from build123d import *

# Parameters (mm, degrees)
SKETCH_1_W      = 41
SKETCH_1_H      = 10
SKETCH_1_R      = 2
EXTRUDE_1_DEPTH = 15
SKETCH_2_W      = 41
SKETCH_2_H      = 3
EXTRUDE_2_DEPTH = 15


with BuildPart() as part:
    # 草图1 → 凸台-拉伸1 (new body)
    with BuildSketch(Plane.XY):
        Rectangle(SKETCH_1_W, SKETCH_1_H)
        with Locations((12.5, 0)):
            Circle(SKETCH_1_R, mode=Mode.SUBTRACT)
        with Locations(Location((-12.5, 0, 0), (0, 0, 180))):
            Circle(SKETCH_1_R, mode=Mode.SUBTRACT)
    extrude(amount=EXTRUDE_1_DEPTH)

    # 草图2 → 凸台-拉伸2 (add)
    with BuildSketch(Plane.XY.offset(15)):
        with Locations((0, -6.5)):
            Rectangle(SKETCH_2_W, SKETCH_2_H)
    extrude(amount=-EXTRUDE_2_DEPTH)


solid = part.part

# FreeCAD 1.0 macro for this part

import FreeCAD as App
import Part
import Sketcher
Q = App.Units.Quantity

doc = App.newDocument("Part")
body = doc.addObject("PartDesign::Body", "Body")

# Sketch on XY plane
sketch1 = doc.addObject("Sketcher::SketchObject", "Sketch")
body.addObject(sketch1)
sketch1.AttachmentSupport = (doc.XY_Plane, [""])
sketch1.MapMode = "FlatFace"
sketch1.addGeometry(Part.LineSegment(App.Vector(-20.5, 5, 0), App.Vector(-20.5, -5, 0)), False)
sketch1.addGeometry(Part.LineSegment(App.Vector(-20.5, -5, 0), App.Vector(20.5, -5, 0)), False)
sketch1.addGeometry(Part.LineSegment(App.Vector(20.5, -5, 0), App.Vector(20.5, 5, 0)), False)
sketch1.addGeometry(Part.LineSegment(App.Vector(20.5, 5, 0), App.Vector(-20.5, 5, 0)), False)
sketch1.addGeometry(Part.Circle(App.Vector(-12.5, 0, 0), App.Vector(0, 0, 1), 2), False)
sketch1.addGeometry(Part.Circle(App.Vector(12.5, 0, 0), App.Vector(0, 0, 1), 2), False)
sketch1.addConstraint(Sketcher.Constraint("Coincident", 0, 2, 1, 1))
sketch1.addConstraint(Sketcher.Constraint("Coincident", 1, 2, 2, 1))
sketch1.addConstraint(Sketcher.Constraint("Coincident", 2, 2, 3, 1))
sketch1.addConstraint(Sketcher.Constraint("Coincident", 3, 2, 0, 1))
sketch1.addConstraint(Sketcher.Constraint("Vertical", 0))
sketch1.addConstraint(Sketcher.Constraint("Horizontal", 1))
sketch1.addConstraint(Sketcher.Constraint("Vertical", 2))
sketch1.addConstraint(Sketcher.Constraint("Horizontal", 3))
sketch1.addConstraint(Sketcher.Constraint("Equal", 4, 5))
sketch1.addConstraint(Sketcher.Constraint("Symmetric", 4, 3, 5, 3, -1, 1))
sketch1.addConstraint(Sketcher.Constraint("Symmetric", 0, 2, 2, 2, -1, 1))
sketch1.addConstraint(Sketcher.Constraint("PointOnObject", 4, 3, -1))
sketch1.addConstraint(Sketcher.Constraint("Diameter", 4, Q("4 mm")))
sketch1.addConstraint(Sketcher.Constraint("DistanceX", 1, 1, 1, 2, Q("41 mm")))
sketch1.addConstraint(Sketcher.Constraint("DistanceY", 0, 2, 0, 1, Q("10 mm")))
sketch1.addConstraint(Sketcher.Constraint("DistanceX", 4, 3, 5, 3, Q("25 mm")))
pad1 = doc.addObject("PartDesign::Pad", "Pad")
body.addObject(pad1)
pad1.Profile = sketch1
pad1.Length = 15

# Sketch on XY plane
sketch2 = doc.addObject("Sketcher::SketchObject", "Sketch001")
body.addObject(sketch2)
sketch2.AttachmentSupport = (doc.XY_Plane, [""])
sketch2.MapMode = "FlatFace"
sketch2.AttachmentOffset = App.Placement(App.Vector(0, 0, 15), App.Rotation())
sketch2.addGeometry(Part.LineSegment(App.Vector(-20.5, -5, 0), App.Vector(-20.5, -8, 0)), False)
sketch2.addGeometry(Part.LineSegment(App.Vector(-20.5, -8, 0), App.Vector(20.5, -8, 0)), False)
sketch2.addGeometry(Part.LineSegment(App.Vector(20.5, -8, 0), App.Vector(20.5, -5, 0)), False)
sketch2.addGeometry(Part.LineSegment(App.Vector(20.5, -5, 0), App.Vector(-20.5, -5, 0)), False)
sketch2.addConstraint(Sketcher.Constraint("Coincident", 0, 2, 1, 1))
sketch2.addConstraint(Sketcher.Constraint("Coincident", 1, 2, 2, 1))
sketch2.addConstraint(Sketcher.Constraint("Coincident", 2, 2, 3, 1))
sketch2.addConstraint(Sketcher.Constraint("Coincident", 3, 2, 0, 1))
sketch2.addConstraint(Sketcher.Constraint("Vertical", 0))
sketch2.addConstraint(Sketcher.Constraint("Horizontal", 1))
sketch2.addConstraint(Sketcher.Constraint("Vertical", 2))
sketch2.addConstraint(Sketcher.Constraint("Horizontal", 3))
sketch2.addConstraint(Sketcher.Constraint("DistanceX", 1, 1, 1, 2, Q("41 mm")))
sketch2.addConstraint(Sketcher.Constraint("DistanceY", 0, 2, 0, 1, Q("3 mm")))
sketch2.addConstraint(Sketcher.Constraint("DistanceY", 0, 2, -1, 1, Q("8 mm")))
sketch2.addConstraint(Sketcher.Constraint("DistanceX", 0, 2, -1, 1, Q("20.5 mm")))
pad2 = doc.addObject("PartDesign::Pad", "Pad001")
body.addObject(pad2)
pad2.Profile = sketch2
pad2.Length = 15
pad2.Reversed = True

doc.recompute()
